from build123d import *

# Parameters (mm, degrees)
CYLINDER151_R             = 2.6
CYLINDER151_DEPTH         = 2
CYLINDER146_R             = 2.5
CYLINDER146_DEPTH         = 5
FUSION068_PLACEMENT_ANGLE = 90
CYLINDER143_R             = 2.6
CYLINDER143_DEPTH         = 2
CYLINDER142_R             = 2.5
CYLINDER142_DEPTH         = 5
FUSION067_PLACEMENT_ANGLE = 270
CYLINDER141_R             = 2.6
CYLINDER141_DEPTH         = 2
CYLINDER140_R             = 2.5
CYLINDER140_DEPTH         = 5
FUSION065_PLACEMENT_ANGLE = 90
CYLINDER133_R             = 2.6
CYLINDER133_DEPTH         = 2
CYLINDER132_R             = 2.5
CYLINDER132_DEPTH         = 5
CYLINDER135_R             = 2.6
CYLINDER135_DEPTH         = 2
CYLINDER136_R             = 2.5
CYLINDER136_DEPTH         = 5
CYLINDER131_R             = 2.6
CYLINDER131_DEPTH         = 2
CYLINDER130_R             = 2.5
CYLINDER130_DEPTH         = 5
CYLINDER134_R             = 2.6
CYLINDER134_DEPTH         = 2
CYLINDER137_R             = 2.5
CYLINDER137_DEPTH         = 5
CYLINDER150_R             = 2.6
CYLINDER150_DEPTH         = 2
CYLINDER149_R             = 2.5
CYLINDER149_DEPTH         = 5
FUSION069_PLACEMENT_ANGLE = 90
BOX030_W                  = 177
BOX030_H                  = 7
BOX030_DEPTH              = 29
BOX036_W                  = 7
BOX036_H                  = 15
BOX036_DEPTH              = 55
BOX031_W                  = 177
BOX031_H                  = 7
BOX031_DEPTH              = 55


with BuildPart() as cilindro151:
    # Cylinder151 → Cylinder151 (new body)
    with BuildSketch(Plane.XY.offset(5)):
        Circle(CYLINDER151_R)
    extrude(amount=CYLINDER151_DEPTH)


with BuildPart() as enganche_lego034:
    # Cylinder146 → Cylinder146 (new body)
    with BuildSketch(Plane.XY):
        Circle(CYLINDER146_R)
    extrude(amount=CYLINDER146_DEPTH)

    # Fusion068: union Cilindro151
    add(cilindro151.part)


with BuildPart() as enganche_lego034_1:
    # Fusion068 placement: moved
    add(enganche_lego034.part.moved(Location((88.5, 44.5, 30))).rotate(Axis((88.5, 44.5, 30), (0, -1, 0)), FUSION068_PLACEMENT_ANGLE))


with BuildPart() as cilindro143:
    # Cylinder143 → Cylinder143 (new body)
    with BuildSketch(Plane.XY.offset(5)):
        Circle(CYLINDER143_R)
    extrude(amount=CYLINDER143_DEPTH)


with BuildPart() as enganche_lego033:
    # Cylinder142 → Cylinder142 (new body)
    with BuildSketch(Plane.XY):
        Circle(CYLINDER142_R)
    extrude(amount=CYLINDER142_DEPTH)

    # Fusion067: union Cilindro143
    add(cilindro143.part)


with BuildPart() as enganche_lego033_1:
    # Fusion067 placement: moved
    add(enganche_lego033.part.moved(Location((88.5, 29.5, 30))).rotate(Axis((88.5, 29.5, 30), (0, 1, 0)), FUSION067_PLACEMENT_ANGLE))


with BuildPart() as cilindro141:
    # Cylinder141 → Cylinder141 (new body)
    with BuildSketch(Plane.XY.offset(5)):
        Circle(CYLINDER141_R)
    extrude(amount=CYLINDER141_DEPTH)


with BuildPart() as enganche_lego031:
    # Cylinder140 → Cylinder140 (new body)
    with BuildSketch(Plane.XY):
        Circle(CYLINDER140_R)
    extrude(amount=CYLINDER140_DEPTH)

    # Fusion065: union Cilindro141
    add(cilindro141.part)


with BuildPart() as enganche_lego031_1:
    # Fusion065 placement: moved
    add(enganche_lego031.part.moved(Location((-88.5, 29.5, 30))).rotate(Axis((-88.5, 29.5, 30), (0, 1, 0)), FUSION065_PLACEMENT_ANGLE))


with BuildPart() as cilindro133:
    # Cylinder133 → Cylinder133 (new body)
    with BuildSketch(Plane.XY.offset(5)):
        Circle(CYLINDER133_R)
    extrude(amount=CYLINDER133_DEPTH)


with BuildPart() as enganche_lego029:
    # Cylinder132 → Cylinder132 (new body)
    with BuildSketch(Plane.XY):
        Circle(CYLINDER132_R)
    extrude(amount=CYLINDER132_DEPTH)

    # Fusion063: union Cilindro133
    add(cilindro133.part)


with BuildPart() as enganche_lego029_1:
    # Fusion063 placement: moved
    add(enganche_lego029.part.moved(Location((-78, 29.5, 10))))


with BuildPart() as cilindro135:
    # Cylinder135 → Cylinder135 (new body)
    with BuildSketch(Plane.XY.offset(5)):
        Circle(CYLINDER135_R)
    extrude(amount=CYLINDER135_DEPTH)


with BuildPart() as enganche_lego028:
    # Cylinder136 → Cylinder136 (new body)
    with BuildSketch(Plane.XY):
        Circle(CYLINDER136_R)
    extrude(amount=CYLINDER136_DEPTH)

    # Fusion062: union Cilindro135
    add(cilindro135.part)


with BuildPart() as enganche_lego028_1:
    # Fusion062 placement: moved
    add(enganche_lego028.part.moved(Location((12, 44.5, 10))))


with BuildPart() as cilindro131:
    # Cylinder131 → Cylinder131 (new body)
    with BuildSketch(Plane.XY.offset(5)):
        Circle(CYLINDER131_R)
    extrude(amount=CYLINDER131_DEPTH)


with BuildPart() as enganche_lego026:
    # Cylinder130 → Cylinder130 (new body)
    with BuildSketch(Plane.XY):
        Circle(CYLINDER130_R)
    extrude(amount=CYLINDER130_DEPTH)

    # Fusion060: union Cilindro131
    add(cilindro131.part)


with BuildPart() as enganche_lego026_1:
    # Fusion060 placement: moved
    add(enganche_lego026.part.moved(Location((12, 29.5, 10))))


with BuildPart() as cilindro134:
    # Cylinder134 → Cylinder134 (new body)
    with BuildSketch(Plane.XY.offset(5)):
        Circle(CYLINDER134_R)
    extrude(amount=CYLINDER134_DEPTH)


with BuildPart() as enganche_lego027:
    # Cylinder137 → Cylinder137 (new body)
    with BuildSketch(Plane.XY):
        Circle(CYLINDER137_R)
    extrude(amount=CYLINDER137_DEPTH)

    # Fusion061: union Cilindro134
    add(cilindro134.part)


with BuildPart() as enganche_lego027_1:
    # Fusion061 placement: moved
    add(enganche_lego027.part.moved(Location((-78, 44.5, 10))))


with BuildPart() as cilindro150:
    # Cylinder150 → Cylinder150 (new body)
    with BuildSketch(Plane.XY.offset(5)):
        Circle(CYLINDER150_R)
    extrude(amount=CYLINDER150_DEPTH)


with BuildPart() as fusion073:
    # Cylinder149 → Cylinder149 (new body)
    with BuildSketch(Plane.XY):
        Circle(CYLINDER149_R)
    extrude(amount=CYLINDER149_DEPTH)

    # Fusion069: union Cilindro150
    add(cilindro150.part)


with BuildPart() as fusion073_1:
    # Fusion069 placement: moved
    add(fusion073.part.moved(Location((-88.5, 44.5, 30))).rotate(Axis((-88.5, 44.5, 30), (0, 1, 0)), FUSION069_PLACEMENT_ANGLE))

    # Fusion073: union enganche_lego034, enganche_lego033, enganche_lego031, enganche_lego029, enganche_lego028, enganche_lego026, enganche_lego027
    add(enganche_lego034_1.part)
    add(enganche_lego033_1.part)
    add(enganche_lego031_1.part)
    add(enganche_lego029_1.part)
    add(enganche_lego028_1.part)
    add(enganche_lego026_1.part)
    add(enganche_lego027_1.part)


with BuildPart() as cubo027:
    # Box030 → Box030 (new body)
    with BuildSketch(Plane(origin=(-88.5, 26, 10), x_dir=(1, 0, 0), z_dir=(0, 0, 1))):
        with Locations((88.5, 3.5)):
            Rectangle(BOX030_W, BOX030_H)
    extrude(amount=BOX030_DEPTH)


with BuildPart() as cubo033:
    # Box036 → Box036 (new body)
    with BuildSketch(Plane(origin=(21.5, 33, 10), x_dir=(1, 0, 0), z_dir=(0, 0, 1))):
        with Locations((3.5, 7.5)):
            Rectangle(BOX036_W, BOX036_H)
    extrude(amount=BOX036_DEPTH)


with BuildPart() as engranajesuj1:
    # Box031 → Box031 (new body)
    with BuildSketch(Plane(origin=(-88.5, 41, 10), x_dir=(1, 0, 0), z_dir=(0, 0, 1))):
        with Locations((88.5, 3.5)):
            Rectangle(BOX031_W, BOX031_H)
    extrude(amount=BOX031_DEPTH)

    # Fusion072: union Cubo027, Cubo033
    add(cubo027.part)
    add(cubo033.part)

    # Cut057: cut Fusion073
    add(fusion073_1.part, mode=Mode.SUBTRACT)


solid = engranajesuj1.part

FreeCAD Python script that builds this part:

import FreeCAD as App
import Part
import Sketcher

V = App.Vector
Q = App.Units.Quantity


def add_polygon(sketch, points):
    """Adds a closed chain of lines whose ends are joined by coincident constraints."""
    first, n = sketch.GeometryCount, len(points)
    for a, b in zip(points, points[1:] + points[:1]):
        sketch.addGeometry(Part.LineSegment(App.Vector(*a, 0), App.Vector(*b, 0)), False)
    for i in range(n):
        sketch.addConstraint(Sketcher.Constraint("Coincident", first + i, 2, first + (i + 1) % n, 1))

doc = App.newDocument("Part")
body = doc.addObject("PartDesign::Body", "Body")

sketch1 = doc.addObject("Sketcher::SketchObject", "Sketch")
body.addObject(sketch1)
sketch1.AttachmentSupport = (doc.XY_Plane, [""])
sketch1.MapMode = "FlatFace"
sketch1.AttachmentOffset = App.Placement(V(0, 0, 5), App.Rotation())
sketch1.addGeometry(Part.Circle(V(0, 0, 0), V(0, 0, 1), 2.6), False)
sketch1.addConstraint([
    Sketcher.Constraint("Coincident", 0, 3, -1, 1),
    Sketcher.Constraint("Diameter", 0, Q("5.2 mm")),
])
pad1 = doc.addObject("PartDesign::Pad", "Pad")
body.addObject(pad1)
pad1.Profile = sketch1
pad1.Length = 2
body2 = doc.addObject("PartDesign::Body", "Body001")

sketch2 = doc.addObject("Sketcher::SketchObject", "Sketch001")
body2.addObject(sketch2)
sketch2.AttachmentSupport = (doc.getObject("XY_Plane001"), [""])
sketch2.MapMode = "FlatFace"
sketch2.addGeometry(Part.Circle(V(0, 0, 0), V(0, 0, 1), 2.5), False)
sketch2.addConstraint([
    Sketcher.Constraint("Coincident", 0, 3, -1, 1),
    Sketcher.Constraint("Diameter", 0, Q("5 mm")),
])
pad2 = doc.addObject("PartDesign::Pad", "Pad001")
body2.addObject(pad2)
pad2.Profile = sketch2
pad2.Length = 5
doc.recompute()

boolean = doc.addObject("PartDesign::Boolean", "Boolean")
body2.addObject(boolean)
boolean.Type = "Fuse"
boolean.addObjects([body])
body3 = doc.addObject("PartDesign::Body", "Body002")
doc.recompute()

body2.Placement = App.Placement(V(88.5, 44.5, 30), App.Rotation(V(0, -1, 0), 90))
boolean2 = doc.addObject("PartDesign::Boolean", "Boolean001")
body3.addObject(boolean2)
boolean2.Type = "Fuse"
boolean2.addObjects([body2])
body4 = doc.addObject("PartDesign::Body", "Body003")

sketch3 = doc.addObject("Sketcher::SketchObject", "Sketch002")
body4.addObject(sketch3)
sketch3.AttachmentSupport = (doc.getObject("XY_Plane003"), [""])
sketch3.MapMode = "FlatFace"
sketch3.AttachmentOffset = App.Placement(V(0, 0, 5), App.Rotation())
sketch3.addGeometry(Part.Circle(V(0, 0, 0), V(0, 0, 1), 2.6), False)
sketch3.addConstraint([
    Sketcher.Constraint("Coincident", 0, 3, -1, 1),
    Sketcher.Constraint("Diameter", 0, Q("5.2 mm")),
])
pad3 = doc.addObject("PartDesign::Pad", "Pad002")
body4.addObject(pad3)
pad3.Profile = sketch3
pad3.Length = 2
body5 = doc.addObject("PartDesign::Body", "Body004")

sketch4 = doc.addObject("Sketcher::SketchObject", "Sketch003")
body5.addObject(sketch4)
sketch4.AttachmentSupport = (doc.getObject("XY_Plane004"), [""])
sketch4.MapMode = "FlatFace"
sketch4.addGeometry(Part.Circle(V(0, 0, 0), V(0, 0, 1), 2.5), False)
sketch4.addConstraint([
    Sketcher.Constraint("Coincident", 0, 3, -1, 1),
    Sketcher.Constraint("Diameter", 0, Q("5 mm")),
])
pad4 = doc.addObject("PartDesign::Pad", "Pad003")
body5.addObject(pad4)
pad4.Profile = sketch4
pad4.Length = 5
doc.recompute()

boolean3 = doc.addObject("PartDesign::Boolean", "Boolean002")
body5.addObject(boolean3)
boolean3.Type = "Fuse"
boolean3.addObjects([body4])
body6 = doc.addObject("PartDesign::Body", "Body005")
doc.recompute()

body5.Placement = App.Placement(V(88.5, 29.5, 30), App.Rotation(V(0, 1, 0), 270))
boolean4 = doc.addObject("PartDesign::Boolean", "Boolean003")
body6.addObject(boolean4)
boolean4.Type = "Fuse"
boolean4.addObjects([body5])
body7 = doc.addObject("PartDesign::Body", "Body006")

sketch5 = doc.addObject("Sketcher::SketchObject", "Sketch004")
body7.addObject(sketch5)
sketch5.AttachmentSupport = (doc.getObject("XY_Plane006"), [""])
sketch5.MapMode = "FlatFace"
sketch5.AttachmentOffset = App.Placement(V(0, 0, 5), App.Rotation())
sketch5.addGeometry(Part.Circle(V(0, 0, 0), V(0, 0, 1), 2.6), False)
sketch5.addConstraint([
    Sketcher.Constraint("Coincident", 0, 3, -1, 1),
    Sketcher.Constraint("Diameter", 0, Q("5.2 mm")),
])
pad5 = doc.addObject("PartDesign::Pad", "Pad004")
body7.addObject(pad5)
pad5.Profile = sketch5
pad5.Length = 2
body8 = doc.addObject("PartDesign::Body", "Body007")

sketch6 = doc.addObject("Sketcher::SketchObject", "Sketch005")
body8.addObject(sketch6)
sketch6.AttachmentSupport = (doc.getObject("XY_Plane007"), [""])
sketch6.MapMode = "FlatFace"
sketch6.addGeometry(Part.Circle(V(0, 0, 0), V(0, 0, 1), 2.5), False)
sketch6.addConstraint([
    Sketcher.Constraint("Coincident", 0, 3, -1, 1),
    Sketcher.Constraint("Diameter", 0, Q("5 mm")),
])
pad6 = doc.addObject("PartDesign::Pad", "Pad005")
body8.addObject(pad6)
pad6.Profile = sketch6
pad6.Length = 5
doc.recompute()

boolean5 = doc.addObject("PartDesign::Boolean", "Boolean004")
body8.addObject(boolean5)
boolean5.Type = "Fuse"
boolean5.addObjects([body7])
body9 = doc.addObject("PartDesign::Body", "Body008")
doc.recompute()

body8.Placement = App.Placement(V(-88.5, 29.5, 30), App.Rotation(V(0, 1, 0), 90))
boolean6 = doc.addObject("PartDesign::Boolean", "Boolean005")
body9.addObject(boolean6)
boolean6.Type = "Fuse"
boolean6.addObjects([body8])
body10 = doc.addObject("PartDesign::Body", "Body009")

sketch7 = doc.addObject("Sketcher::SketchObject", "Sketch006")
body10.addObject(sketch7)
sketch7.AttachmentSupport = (doc.getObject("XY_Plane009"), [""])
sketch7.MapMode = "FlatFace"
sketch7.AttachmentOffset = App.Placement(V(0, 0, 5), App.Rotation())
sketch7.addGeometry(Part.Circle(V(0, 0, 0), V(0, 0, 1), 2.6), False)
sketch7.addConstraint([
    Sketcher.Constraint("Coincident", 0, 3, -1, 1),
    Sketcher.Constraint("Diameter", 0, Q("5.2 mm")),
])
pad7 = doc.addObject("PartDesign::Pad", "Pad006")
body10.addObject(pad7)
pad7.Profile = sketch7
pad7.Length = 2
body11 = doc.addObject("PartDesign::Body", "Body010")

sketch8 = doc.addObject("Sketcher::SketchObject", "Sketch007")
body11.addObject(sketch8)
sketch8.AttachmentSupport = (doc.getObject("XY_Plane010"), [""])
sketch8.MapMode = "FlatFace"
sketch8.addGeometry(Part.Circle(V(0, 0, 0), V(0, 0, 1), 2.5), False)
sketch8.addConstraint([
    Sketcher.Constraint("Coincident", 0, 3, -1, 1),
    Sketcher.Constraint("Diameter", 0, Q("5 mm")),
])
pad8 = doc.addObject("PartDesign::Pad", "Pad007")
body11.addObject(pad8)
pad8.Profile = sketch8
pad8.Length = 5
doc.recompute()

boolean7 = doc.addObject("PartDesign::Boolean", "Boolean006")
body11.addObject(boolean7)
boolean7.Type = "Fuse"
boolean7.addObjects([body10])
body12 = doc.addObject("PartDesign::Body", "Body011")
doc.recompute()

body11.Placement = App.Placement(V(-78, 29.5, 10), App.Rotation(V(0, 0, 1), 0))
boolean8 = doc.addObject("PartDesign::Boolean", "Boolean007")
body12.addObject(boolean8)
boolean8.Type = "Fuse"
boolean8.addObjects([body11])
body13 = doc.addObject("PartDesign::Body", "Body012")

sketch9 = doc.addObject("Sketcher::SketchObject", "Sketch008")
body13.addObject(sketch9)
sketch9.AttachmentSupport = (doc.getObject("XY_Plane012"), [""])
sketch9.MapMode = "FlatFace"
sketch9.AttachmentOffset = App.Placement(V(0, 0, 5), App.Rotation())
sketch9.addGeometry(Part.Circle(V(0, 0, 0), V(0, 0, 1), 2.6), False)
sketch9.addConstraint([
    Sketcher.Constraint("Coincident", 0, 3, -1, 1),
    Sketcher.Constraint("Diameter", 0, Q("5.2 mm")),
])
pad9 = doc.addObject("PartDesign::Pad", "Pad008")
body13.addObject(pad9)
pad9.Profile = sketch9
pad9.Length = 2
body14 = doc.addObject("PartDesign::Body", "Body013")

sketch10 = doc.addObject("Sketcher::SketchObject", "Sketch009")
body14.addObject(sketch10)
sketch10.AttachmentSupport = (doc.getObject("XY_Plane013"), [""])
sketch10.MapMode = "FlatFace"
sketch10.addGeometry(Part.Circle(V(0, 0, 0), V(0, 0, 1), 2.5), False)
sketch10.addConstraint([
    Sketcher.Constraint("Coincident", 0, 3, -1, 1),
    Sketcher.Constraint("Diameter", 0, Q("5 mm")),
])
pad10 = doc.addObject("PartDesign::Pad", "Pad009")
body14.addObject(pad10)
pad10.Profile = sketch10
pad10.Length = 5
doc.recompute()

boolean9 = doc.addObject("PartDesign::Boolean", "Boolean008")
body14.addObject(boolean9)
boolean9.Type = "Fuse"
boolean9.addObjects([body13])
body15 = doc.addObject("PartDesign::Body", "Body014")
doc.recompute()

body14.Placement = App.Placement(V(12, 44.5, 10), App.Rotation(V(0, 0, 1), 0))
boolean10 = doc.addObject("PartDesign::Boolean", "Boolean009")
body15.addObject(boolean10)
boolean10.Type = "Fuse"
boolean10.addObjects([body14])
body16 = doc.addObject("PartDesign::Body", "Body015")

sketch11 = doc.addObject("Sketcher::SketchObject", "Sketch010")
body16.addObject(sketch11)
sketch11.AttachmentSupport = (doc.getObject("XY_Plane015"), [""])
sketch11.MapMode = "FlatFace"
sketch11.AttachmentOffset = App.Placement(V(0, 0, 5), App.Rotation())
sketch11.addGeometry(Part.Circle(V(0, 0, 0), V(0, 0, 1), 2.6), False)
sketch11.addConstraint([
    Sketcher.Constraint("Coincident", 0, 3, -1, 1),
    Sketcher.Constraint("Diameter", 0, Q("5.2 mm")),
])
pad11 = doc.addObject("PartDesign::Pad", "Pad010")
body16.addObject(pad11)
pad11.Profile = sketch11
pad11.Length = 2
body17 = doc.addObject("PartDesign::Body", "Body016")

sketch12 = doc.addObject("Sketcher::SketchObject", "Sketch011")
body17.addObject(sketch12)
sketch12.AttachmentSupport = (doc.getObject("XY_Plane016"), [""])
sketch12.MapMode = "FlatFace"
sketch12.addGeometry(Part.Circle(V(0, 0, 0), V(0, 0, 1), 2.5), False)
sketch12.addConstraint([
    Sketcher.Constraint("Coincident", 0, 3, -1, 1),
    Sketcher.Constraint("Diameter", 0, Q("5 mm")),
])
pad12 = doc.addObject("PartDesign::Pad", "Pad011")
body17.addObject(pad12)
pad12.Profile = sketch12
pad12.Length = 5
doc.recompute()

boolean11 = doc.addObject("PartDesign::Boolean", "Boolean010")
body17.addObject(boolean11)
boolean11.Type = "Fuse"
boolean11.addObjects([body16])
body18 = doc.addObject("PartDesign::Body", "Body017")
doc.recompute()

body17.Placement = App.Placement(V(12, 29.5, 10), App.Rotation(V(0, 0, 1), 0))
boolean12 = doc.addObject("PartDesign::Boolean", "Boolean011")
body18.addObject(boolean12)
boolean12.Type = "Fuse"
boolean12.addObjects([body17])
body19 = doc.addObject("PartDesign::Body", "Body018")

sketch13 = doc.addObject("Sketcher::SketchObject", "Sketch012")
body19.addObject(sketch13)
sketch13.AttachmentSupport = (doc.getObject("XY_Plane018"), [""])
sketch13.MapMode = "FlatFace"
sketch13.AttachmentOffset = App.Placement(V(0, 0, 5), App.Rotation())
sketch13.addGeometry(Part.Circle(V(0, 0, 0), V(0, 0, 1), 2.6), False)
sketch13.addConstraint([
    Sketcher.Constraint("Coincident", 0, 3, -1, 1),
    Sketcher.Constraint("Diameter", 0, Q("5.2 mm")),
])
pad13 = doc.addObject("PartDesign::Pad", "Pad012")
body19.addObject(pad13)
pad13.Profile = sketch13
pad13.Length = 2
body20 = doc.addObject("PartDesign::Body", "Body019")

sketch14 = doc.addObject("Sketcher::SketchObject", "Sketch013")
body20.addObject(sketch14)
sketch14.AttachmentSupport = (doc.getObject("XY_Plane019"), [""])
sketch14.MapMode = "FlatFace"
sketch14.addGeometry(Part.Circle(V(0, 0, 0), V(0, 0, 1), 2.5), False)
sketch14.addConstraint([
    Sketcher.Constraint("Coincident", 0, 3, -1, 1),
    Sketcher.Constraint("Diameter", 0, Q("5 mm")),
])
pad14 = doc.addObject("PartDesign::Pad", "Pad013")
body20.addObject(pad14)
pad14.Profile = sketch14
pad14.Length = 5
doc.recompute()

boolean13 = doc.addObject("PartDesign::Boolean", "Boolean012")
body20.addObject(boolean13)
boolean13.Type = "Fuse"
boolean13.addObjects([body19])
body21 = doc.addObject("PartDesign::Body", "Body020")
doc.recompute()

body20.Placement = App.Placement(V(-78, 44.5, 10), App.Rotation(V(0, 0, 1), 0))
boolean14 = doc.addObject("PartDesign::Boolean", "Boolean013")
body21.addObject(boolean14)
boolean14.Type = "Fuse"
boolean14.addObjects([body20])
body22 = doc.addObject("PartDesign::Body", "Body021")

sketch15 = doc.addObject("Sketcher::SketchObject", "Sketch014")
body22.addObject(sketch15)
sketch15.AttachmentSupport = (doc.getObject("XY_Plane021"), [""])
sketch15.MapMode = "FlatFace"
sketch15.AttachmentOffset = App.Placement(V(0, 0, 5), App.Rotation())
sketch15.addGeometry(Part.Circle(V(0, 0, 0), V(0, 0, 1), 2.6), False)
sketch15.addConstraint([
    Sketcher.Constraint("Coincident", 0, 3, -1, 1),
    Sketcher.Constraint("Diameter", 0, Q("5.2 mm")),
])
pad15 = doc.addObject("PartDesign::Pad", "Pad014")
body22.addObject(pad15)
pad15.Profile = sketch15
pad15.Length = 2
body23 = doc.addObject("PartDesign::Body", "Body022")

sketch16 = doc.addObject("Sketcher::SketchObject", "Sketch015")
body23.addObject(sketch16)
sketch16.AttachmentSupport = (doc.getObject("XY_Plane022"), [""])
sketch16.MapMode = "FlatFace"
sketch16.addGeometry(Part.Circle(V(0, 0, 0), V(0, 0, 1), 2.5), False)
sketch16.addConstraint([
    Sketcher.Constraint("Coincident", 0, 3, -1, 1),
    Sketcher.Constraint("Diameter", 0, Q("5 mm")),
])
pad16 = doc.addObject("PartDesign::Pad", "Pad015")
body23.addObject(pad16)
pad16.Profile = sketch16
pad16.Length = 5
doc.recompute()

boolean15 = doc.addObject("PartDesign::Boolean", "Boolean014")
body23.addObject(boolean15)
boolean15.Type = "Fuse"
boolean15.addObjects([body22])
body24 = doc.addObject("PartDesign::Body", "Body023")
body24.AllowCompound = True
doc.recompute()

body23.Placement = App.Placement(V(-88.5, 44.5, 30), App.Rotation(V(0, 1, 0), 90))
boolean16 = doc.addObject("PartDesign::Boolean", "Boolean015")
body24.addObject(boolean16)
boolean16.Type = "Fuse"
boolean16.addObjects([body23])
doc.recompute()

boolean17 = doc.addObject("PartDesign::Boolean", "Boolean016")
body24.addObject(boolean17)
boolean17.Type = "Fuse"
boolean17.addObjects([body3])
doc.recompute()

boolean18 = doc.addObject("PartDesign::Boolean", "Boolean017")
body24.addObject(boolean18)
boolean18.Type = "Fuse"
boolean18.addObjects([body6])
doc.recompute()

boolean19 = doc.addObject("PartDesign::Boolean", "Boolean018")
body24.addObject(boolean19)
boolean19.Type = "Fuse"
boolean19.addObjects([body9])
doc.recompute()

boolean20 = doc.addObject("PartDesign::Boolean", "Boolean019")
body24.addObject(boolean20)
boolean20.Type = "Fuse"
boolean20.addObjects([body12])
doc.recompute()

boolean21 = doc.addObject("PartDesign::Boolean", "Boolean020")
body24.addObject(boolean21)
boolean21.Type = "Fuse"
boolean21.addObjects([body15])
doc.recompute()

boolean22 = doc.addObject("PartDesign::Boolean", "Boolean021")
body24.addObject(boolean22)
boolean22.Type = "Fuse"
boolean22.addObjects([body18])
doc.recompute()

boolean23 = doc.addObject("PartDesign::Boolean", "Boolean022")
body24.addObject(boolean23)
boolean23.Type = "Fuse"
boolean23.addObjects([body21])
body25 = doc.addObject("PartDesign::Body", "Body024")

sketch17 = doc.addObject("Sketcher::SketchObject", "Sketch016")
body25.addObject(sketch17)
sketch17.AttachmentSupport = (doc.getObject("XY_Plane024"), [""])
sketch17.MapMode = "FlatFace"
sketch17.AttachmentOffset = App.Placement(V(0, 0, 10), App.Rotation())
add_polygon(sketch17, [(-88, 33), (-88, 26), (88, 26), (88, 33)])
sketch17.addConstraint([
    Sketcher.Constraint("Vertical", 0),
    Sketcher.Constraint("Horizontal", 1),
    Sketcher.Constraint("Vertical", 2),
    Sketcher.Constraint("Horizontal", 3),
    Sketcher.Constraint("DistanceX", 1, 1, 1, 2, Q("177 mm")),
    Sketcher.Constraint("DistanceY", 0, 2, 0, 1, Q("7 mm")),
    Sketcher.Constraint("DistanceY", -1, 1, 0, 2, Q("26 mm")),
    Sketcher.Constraint("DistanceX", 0, 2, -1, 1, Q("88.5 mm")),
])
pad17 = doc.addObject("PartDesign::Pad", "Pad016")
body25.addObject(pad17)
pad17.Profile = sketch17
pad17.Length = 29
body26 = doc.addObject("PartDesign::Body", "Body025")

sketch18 = doc.addObject("Sketcher::SketchObject", "Sketch017")
body26.addObject(sketch18)
sketch18.AttachmentSupport = (doc.getObject("XY_Plane025"), [""])
sketch18.MapMode = "FlatFace"
sketch18.AttachmentOffset = App.Placement(V(0, 0, 10), App.Rotation())
add_polygon(sketch18, [(22, 48), (22, 33), (28, 33), (28, 48)])
sketch18.addConstraint([
    Sketcher.Constraint("Vertical", 0),
    Sketcher.Constraint("Horizontal", 1),
    Sketcher.Constraint("Vertical", 2),
    Sketcher.Constraint("Horizontal", 3),
    Sketcher.Constraint("DistanceX", 1, 1, 1, 2, Q("7 mm")),
    Sketcher.Constraint("DistanceY", 0, 2, 0, 1, Q("15 mm")),
    Sketcher.Constraint("DistanceY", -1, 1, 0, 2, Q("33 mm")),
    Sketcher.Constraint("DistanceX", -1, 1, 0, 2, Q("21.5 mm")),
])
pad18 = doc.addObject("PartDesign::Pad", "Pad017")
body26.addObject(pad18)
pad18.Profile = sketch18
pad18.Length = 55
body27 = doc.addObject("PartDesign::Body", "Body026")
body27.AllowCompound = True

sketch19 = doc.addObject("Sketcher::SketchObject", "Sketch018")
body27.addObject(sketch19)
sketch19.AttachmentSupport = (doc.getObject("XY_Plane026"), [""])
sketch19.MapMode = "FlatFace"
sketch19.AttachmentOffset = App.Placement(V(0, 0, 10), App.Rotation())
add_polygon(sketch19, [(-88, 48), (-88, 41), (88, 41), (88, 48)])
sketch19.addConstraint([
    Sketcher.Constraint("Vertical", 0),
    Sketcher.Constraint("Horizontal", 1),
    Sketcher.Constraint("Vertical", 2),
    Sketcher.Constraint("Horizontal", 3),
    Sketcher.Constraint("DistanceX", 1, 1, 1, 2, Q("177 mm")),
    Sketcher.Constraint("DistanceY", 0, 2, 0, 1, Q("7 mm")),
    Sketcher.Constraint("DistanceY", -1, 1, 0, 2, Q("41 mm")),
    Sketcher.Constraint("DistanceX", 0, 2, -1, 1, Q("88.5 mm")),
])
pad19 = doc.addObject("PartDesign::Pad", "Pad018")
body27.addObject(pad19)
pad19.Profile = sketch19
pad19.Length = 55
doc.recompute()

boolean24 = doc.addObject("PartDesign::Boolean", "Boolean023")
body27.addObject(boolean24)
boolean24.Type = "Fuse"
boolean24.addObjects([body25])
doc.recompute()

boolean25 = doc.addObject("PartDesign::Boolean", "Boolean024")
body27.addObject(boolean25)
boolean25.Type = "Fuse"
boolean25.addObjects([body26])
doc.recompute()

boolean26 = doc.addObject("PartDesign::Boolean", "Boolean025")
body27.addObject(boolean26)
boolean26.Type = "Cut"
boolean26.addObjects([body24])

doc.recompute()
